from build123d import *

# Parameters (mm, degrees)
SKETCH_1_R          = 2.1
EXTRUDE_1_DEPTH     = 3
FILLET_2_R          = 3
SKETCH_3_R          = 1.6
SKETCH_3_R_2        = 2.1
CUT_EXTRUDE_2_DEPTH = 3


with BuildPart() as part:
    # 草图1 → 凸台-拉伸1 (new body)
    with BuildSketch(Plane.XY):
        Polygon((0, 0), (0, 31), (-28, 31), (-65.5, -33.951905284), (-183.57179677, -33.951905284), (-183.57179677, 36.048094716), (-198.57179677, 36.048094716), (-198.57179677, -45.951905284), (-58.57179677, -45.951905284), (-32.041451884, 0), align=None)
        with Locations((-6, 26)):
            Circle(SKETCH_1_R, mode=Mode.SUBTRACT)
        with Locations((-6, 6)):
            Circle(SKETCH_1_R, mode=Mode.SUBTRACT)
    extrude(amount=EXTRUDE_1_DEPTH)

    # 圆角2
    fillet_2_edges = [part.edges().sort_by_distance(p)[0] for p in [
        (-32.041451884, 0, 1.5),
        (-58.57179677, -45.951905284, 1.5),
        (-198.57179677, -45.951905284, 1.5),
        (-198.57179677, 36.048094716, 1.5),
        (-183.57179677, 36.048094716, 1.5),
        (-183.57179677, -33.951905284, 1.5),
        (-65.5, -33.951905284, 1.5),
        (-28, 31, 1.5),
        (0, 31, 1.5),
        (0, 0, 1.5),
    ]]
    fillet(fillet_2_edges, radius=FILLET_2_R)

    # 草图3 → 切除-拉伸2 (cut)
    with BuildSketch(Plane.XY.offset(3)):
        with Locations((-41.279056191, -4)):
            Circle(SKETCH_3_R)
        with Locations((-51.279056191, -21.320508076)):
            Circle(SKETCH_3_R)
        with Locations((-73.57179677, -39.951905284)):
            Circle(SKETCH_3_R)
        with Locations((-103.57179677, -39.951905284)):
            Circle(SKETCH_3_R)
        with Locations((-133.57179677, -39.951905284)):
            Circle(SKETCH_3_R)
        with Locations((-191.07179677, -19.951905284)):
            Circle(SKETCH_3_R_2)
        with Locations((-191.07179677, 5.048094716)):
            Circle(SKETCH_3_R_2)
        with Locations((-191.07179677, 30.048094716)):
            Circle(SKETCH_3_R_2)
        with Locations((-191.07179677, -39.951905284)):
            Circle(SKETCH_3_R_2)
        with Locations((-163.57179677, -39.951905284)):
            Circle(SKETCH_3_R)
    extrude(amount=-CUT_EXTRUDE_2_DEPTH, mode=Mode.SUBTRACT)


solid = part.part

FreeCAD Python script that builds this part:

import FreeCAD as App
import Part
import Sketcher
from FreeCAD import Vector
Q = App.Units.Quantity


def edges_at(feature, points):
    """Names of the edges that pass closest to the given points."""
    edges = feature.Shape.Edges
    near = lambda p: min(range(len(edges)), key=lambda i: edges[i].distToShape(Part.Vertex(*p))[0])
    return sorted({f"Edge{near(p) + 1}" for p in points})

doc = App.newDocument("Part")
body = doc.addObject("PartDesign::Body", "Body")

sketch1 = doc.addObject("Sketcher::SketchObject", "Sketch")
body.addObject(sketch1)
sketch1.AttachmentSupport = (doc.XY_Plane, [""])
sketch1.MapMode = "FlatFace"
sketch1.addGeometry([
    Part.LineSegment(Vector(0, 0, 0), Vector(0, 31, 0)),
    Part.LineSegment(Vector(0, 31, 0), Vector(-28, 31, 0)),
    Part.LineSegment(Vector(-28, 31, 0), Vector(-65.5, -34, 0)),
    Part.LineSegment(Vector(-65.5, -34, 0), Vector(-183.6, -34, 0)),
    Part.LineSegment(Vector(-183.6, -34, 0), Vector(-183.6, 36, 0)),
    Part.LineSegment(Vector(-183.6, 36, 0), Vector(-198.6, 36, 0)),
    Part.LineSegment(Vector(-198.6, 36, 0), Vector(-198.6, -46, 0)),
    Part.LineSegment(Vector(-198.6, -46, 0), Vector(-58.6, -46, 0)),
    Part.LineSegment(Vector(-58.6, -46, 0), Vector(-32, 0, 0)),
    Part.LineSegment(Vector(-32, 0, 0), Vector(0, 0, 0)),
    Part.Circle(Vector(-6, 6, 0), Vector(0, 0, 1), 2.1),
    Part.Circle(Vector(-6, 26, 0), Vector(0, 0, 1), 2.1),
], False)
sketch1.addConstraint([
    Sketcher.Constraint("Coincident", 0, 2, 1, 1),
    Sketcher.Constraint("Coincident", 1, 2, 2, 1),
    Sketcher.Constraint("Coincident", 2, 2, 3, 1),
    Sketcher.Constraint("Coincident", 3, 2, 4, 1),
    Sketcher.Constraint("Coincident", 4, 2, 5, 1),
    Sketcher.Constraint("Coincident", 5, 2, 6, 1),
    Sketcher.Constraint("Coincident", 6, 2, 7, 1),
    Sketcher.Constraint("Coincident", 7, 2, 8, 1),
    Sketcher.Constraint("Coincident", 8, 2, 9, 1),
    Sketcher.Constraint("Coincident", 9, 2, 0, 1),
    Sketcher.Constraint("Vertical", 0),
    Sketcher.Constraint("Horizontal", 1),
    Sketcher.Constraint("Horizontal", 3),
    Sketcher.Constraint("Vertical", 4),
    Sketcher.Constraint("Horizontal", 5),
    Sketcher.Constraint("Vertical", 6),
    Sketcher.Constraint("Horizontal", 7),
    Sketcher.Constraint("Horizontal", 9),
    Sketcher.Constraint("Coincident", 9, 2, -1, 1),
    Sketcher.Constraint("Equal", 10, 11),
    Sketcher.Constraint("Parallel", 2, 8),
    Sketcher.Constraint("Vertical", 10, 3, 11, 3),
    Sketcher.Constraint("Diameter", 10, 4.2),
    Sketcher.Constraint("DistanceX", 1, 2, 1, 1, 28.0),
    Sketcher.Constraint("DistanceX", 5, 2, 5, 1, 15.0),
    Sketcher.Constraint("DistanceX", 7, 1, 7, 2, 140.0),
    Sketcher.Constraint("DistanceY", 0, 1, 0, 2, 31.0),
    Sketcher.Constraint("DistanceY", 4, 1, 4, 2, 70.0),
    Sketcher.Constraint("DistanceY", 6, 2, 6, 1, 82.0),
    Sketcher.Constraint("Angle", 2, Q("-120 deg")),
    Sketcher.Constraint("Distance", 2, 75.0),
    Sketcher.Constraint("DistanceX", 10, 3, -1, 1, 6.0),
    Sketcher.Constraint("DistanceY", -1, 1, 10, 3, 6.0),
    Sketcher.Constraint("DistanceY", -1, 1, 11, 3, 26.0),
    Sketcher.Constraint("DistanceX", 9, 1, 9, 2, 32.041452),
])
pad1 = doc.addObject("PartDesign::Pad", "Pad")
body.addObject(pad1)
pad1.Profile = sketch1
pad1.Length = 3
doc.recompute()

fillet = doc.addObject("PartDesign::Fillet", "Fillet")
body.addObject(fillet)
fillet.Base = (pad1, edges_at(pad1, [
    (-32.041, 0, 1.5),
    (-58.572, -45.952, 1.5),
    (-198.572, -45.952, 1.5),
    (-198.572, 36.048, 1.5),
    (-183.572, 36.048, 1.5),
    (-183.572, -33.952, 1.5),
    (-65.5, -33.952, 1.5),
    (-28, 31, 1.5),
    (0, 31, 1.5),
    (0, 0, 1.5),
]))
fillet.Radius = 3

sketch2 = doc.addObject("Sketcher::SketchObject", "Sketch001")
body.addObject(sketch2)
sketch2.AttachmentSupport = (doc.XY_Plane, [""])
sketch2.MapMode = "FlatFace"
sketch2.AttachmentOffset = App.Placement(Vector(0, 0, 3), App.Rotation())
sketch2.addGeometry([
    Part.Circle(Vector(-41.3, -4, 0), Vector(0, 0, 1), 1.6),
    Part.Circle(Vector(-51.3, -21.3, 0), Vector(0, 0, 1), 1.6),
    Part.Circle(Vector(-73.6, -40, 0), Vector(0, 0, 1), 1.6),
    Part.Circle(Vector(-103.6, -40, 0), Vector(0, 0, 1), 1.6),
    Part.Circle(Vector(-133.6, -40, 0), Vector(0, 0, 1), 1.6),
    Part.Circle(Vector(-191.1, -20, 0), Vector(0, 0, 1), 2.1),
    Part.Circle(Vector(-191.1, 5, 0), Vector(0, 0, 1), 2.1),
    Part.Circle(Vector(-191.1, 30, 0), Vector(0, 0, 1), 2.1),
    Part.Circle(Vector(-191.1, -40, 0), Vector(0, 0, 1), 2.1),
    Part.Circle(Vector(-163.6, -40, 0), Vector(0, 0, 1), 1.6),
], False)
sketch2.addConstraint([
    Sketcher.Constraint("Equal", 0, 1),
    Sketcher.Constraint("Equal", 1, 2),
    Sketcher.Constraint("Equal", 2, 3),
    Sketcher.Constraint("Equal", 3, 4),
    Sketcher.Constraint("Equal", 5, 6),
    Sketcher.Constraint("Equal", 6, 7),
    Sketcher.Constraint("Equal", 7, 8),
    Sketcher.Constraint("Equal", 4, 9),
    Sketcher.Constraint("Horizontal", 2, 3, 3, 3),
    Sketcher.Constraint("Horizontal", 3, 3, 4, 3),
    Sketcher.Constraint("Horizontal", 4, 3, 8, 3),
    Sketcher.Constraint("Horizontal", 8, 3, 9, 3),
    Sketcher.Constraint("Vertical", 5, 3, 6, 3),
    Sketcher.Constraint("Vertical", 6, 3, 7, 3),
    Sketcher.Constraint("Vertical", 7, 3, 8, 3),
    Sketcher.Constraint("Diameter", 0, 3.2),
    Sketcher.Constraint("Diameter", 5, 4.2),
    Sketcher.Constraint("DistanceY", 0, 3, -1, 1, 4.0),
    Sketcher.Constraint("DistanceX", 1, 3, 0, 3, 10.0),
    Sketcher.Constraint("DistanceX", 3, 3, 2, 3, 30.0),
    Sketcher.Constraint("DistanceX", 4, 3, 3, 3, 30.0),
    Sketcher.Constraint("DistanceY", 4, 3, 5, 3, 20.0),
    Sketcher.Constraint("DistanceY", 5, 3, 6, 3, 25.0),
    Sketcher.Constraint("DistanceY", 6, 3, 7, 3, 25.0),
    Sketcher.Constraint("DistanceX", 9, 3, 4, 3, 30.0),
    Sketcher.Constraint("DistanceX", 5, 3, 4, 3, 57.5),
    Sketcher.Constraint("DistanceY", 1, 3, -1, 1, 21.320508),
    Sketcher.Constraint("DistanceX", 2, 3, 1, 3, 22.292741),
    Sketcher.Constraint("DistanceX", 0, 3, -1, 1, 41.279056),
    Sketcher.Constraint("DistanceY", 2, 3, -1, 1, 39.951905),
])
pocket1 = doc.addObject("PartDesign::Pocket", "Pocket")
body.addObject(pocket1)
pocket1.Profile = sketch2
pocket1.Length = 3

doc.recompute()
